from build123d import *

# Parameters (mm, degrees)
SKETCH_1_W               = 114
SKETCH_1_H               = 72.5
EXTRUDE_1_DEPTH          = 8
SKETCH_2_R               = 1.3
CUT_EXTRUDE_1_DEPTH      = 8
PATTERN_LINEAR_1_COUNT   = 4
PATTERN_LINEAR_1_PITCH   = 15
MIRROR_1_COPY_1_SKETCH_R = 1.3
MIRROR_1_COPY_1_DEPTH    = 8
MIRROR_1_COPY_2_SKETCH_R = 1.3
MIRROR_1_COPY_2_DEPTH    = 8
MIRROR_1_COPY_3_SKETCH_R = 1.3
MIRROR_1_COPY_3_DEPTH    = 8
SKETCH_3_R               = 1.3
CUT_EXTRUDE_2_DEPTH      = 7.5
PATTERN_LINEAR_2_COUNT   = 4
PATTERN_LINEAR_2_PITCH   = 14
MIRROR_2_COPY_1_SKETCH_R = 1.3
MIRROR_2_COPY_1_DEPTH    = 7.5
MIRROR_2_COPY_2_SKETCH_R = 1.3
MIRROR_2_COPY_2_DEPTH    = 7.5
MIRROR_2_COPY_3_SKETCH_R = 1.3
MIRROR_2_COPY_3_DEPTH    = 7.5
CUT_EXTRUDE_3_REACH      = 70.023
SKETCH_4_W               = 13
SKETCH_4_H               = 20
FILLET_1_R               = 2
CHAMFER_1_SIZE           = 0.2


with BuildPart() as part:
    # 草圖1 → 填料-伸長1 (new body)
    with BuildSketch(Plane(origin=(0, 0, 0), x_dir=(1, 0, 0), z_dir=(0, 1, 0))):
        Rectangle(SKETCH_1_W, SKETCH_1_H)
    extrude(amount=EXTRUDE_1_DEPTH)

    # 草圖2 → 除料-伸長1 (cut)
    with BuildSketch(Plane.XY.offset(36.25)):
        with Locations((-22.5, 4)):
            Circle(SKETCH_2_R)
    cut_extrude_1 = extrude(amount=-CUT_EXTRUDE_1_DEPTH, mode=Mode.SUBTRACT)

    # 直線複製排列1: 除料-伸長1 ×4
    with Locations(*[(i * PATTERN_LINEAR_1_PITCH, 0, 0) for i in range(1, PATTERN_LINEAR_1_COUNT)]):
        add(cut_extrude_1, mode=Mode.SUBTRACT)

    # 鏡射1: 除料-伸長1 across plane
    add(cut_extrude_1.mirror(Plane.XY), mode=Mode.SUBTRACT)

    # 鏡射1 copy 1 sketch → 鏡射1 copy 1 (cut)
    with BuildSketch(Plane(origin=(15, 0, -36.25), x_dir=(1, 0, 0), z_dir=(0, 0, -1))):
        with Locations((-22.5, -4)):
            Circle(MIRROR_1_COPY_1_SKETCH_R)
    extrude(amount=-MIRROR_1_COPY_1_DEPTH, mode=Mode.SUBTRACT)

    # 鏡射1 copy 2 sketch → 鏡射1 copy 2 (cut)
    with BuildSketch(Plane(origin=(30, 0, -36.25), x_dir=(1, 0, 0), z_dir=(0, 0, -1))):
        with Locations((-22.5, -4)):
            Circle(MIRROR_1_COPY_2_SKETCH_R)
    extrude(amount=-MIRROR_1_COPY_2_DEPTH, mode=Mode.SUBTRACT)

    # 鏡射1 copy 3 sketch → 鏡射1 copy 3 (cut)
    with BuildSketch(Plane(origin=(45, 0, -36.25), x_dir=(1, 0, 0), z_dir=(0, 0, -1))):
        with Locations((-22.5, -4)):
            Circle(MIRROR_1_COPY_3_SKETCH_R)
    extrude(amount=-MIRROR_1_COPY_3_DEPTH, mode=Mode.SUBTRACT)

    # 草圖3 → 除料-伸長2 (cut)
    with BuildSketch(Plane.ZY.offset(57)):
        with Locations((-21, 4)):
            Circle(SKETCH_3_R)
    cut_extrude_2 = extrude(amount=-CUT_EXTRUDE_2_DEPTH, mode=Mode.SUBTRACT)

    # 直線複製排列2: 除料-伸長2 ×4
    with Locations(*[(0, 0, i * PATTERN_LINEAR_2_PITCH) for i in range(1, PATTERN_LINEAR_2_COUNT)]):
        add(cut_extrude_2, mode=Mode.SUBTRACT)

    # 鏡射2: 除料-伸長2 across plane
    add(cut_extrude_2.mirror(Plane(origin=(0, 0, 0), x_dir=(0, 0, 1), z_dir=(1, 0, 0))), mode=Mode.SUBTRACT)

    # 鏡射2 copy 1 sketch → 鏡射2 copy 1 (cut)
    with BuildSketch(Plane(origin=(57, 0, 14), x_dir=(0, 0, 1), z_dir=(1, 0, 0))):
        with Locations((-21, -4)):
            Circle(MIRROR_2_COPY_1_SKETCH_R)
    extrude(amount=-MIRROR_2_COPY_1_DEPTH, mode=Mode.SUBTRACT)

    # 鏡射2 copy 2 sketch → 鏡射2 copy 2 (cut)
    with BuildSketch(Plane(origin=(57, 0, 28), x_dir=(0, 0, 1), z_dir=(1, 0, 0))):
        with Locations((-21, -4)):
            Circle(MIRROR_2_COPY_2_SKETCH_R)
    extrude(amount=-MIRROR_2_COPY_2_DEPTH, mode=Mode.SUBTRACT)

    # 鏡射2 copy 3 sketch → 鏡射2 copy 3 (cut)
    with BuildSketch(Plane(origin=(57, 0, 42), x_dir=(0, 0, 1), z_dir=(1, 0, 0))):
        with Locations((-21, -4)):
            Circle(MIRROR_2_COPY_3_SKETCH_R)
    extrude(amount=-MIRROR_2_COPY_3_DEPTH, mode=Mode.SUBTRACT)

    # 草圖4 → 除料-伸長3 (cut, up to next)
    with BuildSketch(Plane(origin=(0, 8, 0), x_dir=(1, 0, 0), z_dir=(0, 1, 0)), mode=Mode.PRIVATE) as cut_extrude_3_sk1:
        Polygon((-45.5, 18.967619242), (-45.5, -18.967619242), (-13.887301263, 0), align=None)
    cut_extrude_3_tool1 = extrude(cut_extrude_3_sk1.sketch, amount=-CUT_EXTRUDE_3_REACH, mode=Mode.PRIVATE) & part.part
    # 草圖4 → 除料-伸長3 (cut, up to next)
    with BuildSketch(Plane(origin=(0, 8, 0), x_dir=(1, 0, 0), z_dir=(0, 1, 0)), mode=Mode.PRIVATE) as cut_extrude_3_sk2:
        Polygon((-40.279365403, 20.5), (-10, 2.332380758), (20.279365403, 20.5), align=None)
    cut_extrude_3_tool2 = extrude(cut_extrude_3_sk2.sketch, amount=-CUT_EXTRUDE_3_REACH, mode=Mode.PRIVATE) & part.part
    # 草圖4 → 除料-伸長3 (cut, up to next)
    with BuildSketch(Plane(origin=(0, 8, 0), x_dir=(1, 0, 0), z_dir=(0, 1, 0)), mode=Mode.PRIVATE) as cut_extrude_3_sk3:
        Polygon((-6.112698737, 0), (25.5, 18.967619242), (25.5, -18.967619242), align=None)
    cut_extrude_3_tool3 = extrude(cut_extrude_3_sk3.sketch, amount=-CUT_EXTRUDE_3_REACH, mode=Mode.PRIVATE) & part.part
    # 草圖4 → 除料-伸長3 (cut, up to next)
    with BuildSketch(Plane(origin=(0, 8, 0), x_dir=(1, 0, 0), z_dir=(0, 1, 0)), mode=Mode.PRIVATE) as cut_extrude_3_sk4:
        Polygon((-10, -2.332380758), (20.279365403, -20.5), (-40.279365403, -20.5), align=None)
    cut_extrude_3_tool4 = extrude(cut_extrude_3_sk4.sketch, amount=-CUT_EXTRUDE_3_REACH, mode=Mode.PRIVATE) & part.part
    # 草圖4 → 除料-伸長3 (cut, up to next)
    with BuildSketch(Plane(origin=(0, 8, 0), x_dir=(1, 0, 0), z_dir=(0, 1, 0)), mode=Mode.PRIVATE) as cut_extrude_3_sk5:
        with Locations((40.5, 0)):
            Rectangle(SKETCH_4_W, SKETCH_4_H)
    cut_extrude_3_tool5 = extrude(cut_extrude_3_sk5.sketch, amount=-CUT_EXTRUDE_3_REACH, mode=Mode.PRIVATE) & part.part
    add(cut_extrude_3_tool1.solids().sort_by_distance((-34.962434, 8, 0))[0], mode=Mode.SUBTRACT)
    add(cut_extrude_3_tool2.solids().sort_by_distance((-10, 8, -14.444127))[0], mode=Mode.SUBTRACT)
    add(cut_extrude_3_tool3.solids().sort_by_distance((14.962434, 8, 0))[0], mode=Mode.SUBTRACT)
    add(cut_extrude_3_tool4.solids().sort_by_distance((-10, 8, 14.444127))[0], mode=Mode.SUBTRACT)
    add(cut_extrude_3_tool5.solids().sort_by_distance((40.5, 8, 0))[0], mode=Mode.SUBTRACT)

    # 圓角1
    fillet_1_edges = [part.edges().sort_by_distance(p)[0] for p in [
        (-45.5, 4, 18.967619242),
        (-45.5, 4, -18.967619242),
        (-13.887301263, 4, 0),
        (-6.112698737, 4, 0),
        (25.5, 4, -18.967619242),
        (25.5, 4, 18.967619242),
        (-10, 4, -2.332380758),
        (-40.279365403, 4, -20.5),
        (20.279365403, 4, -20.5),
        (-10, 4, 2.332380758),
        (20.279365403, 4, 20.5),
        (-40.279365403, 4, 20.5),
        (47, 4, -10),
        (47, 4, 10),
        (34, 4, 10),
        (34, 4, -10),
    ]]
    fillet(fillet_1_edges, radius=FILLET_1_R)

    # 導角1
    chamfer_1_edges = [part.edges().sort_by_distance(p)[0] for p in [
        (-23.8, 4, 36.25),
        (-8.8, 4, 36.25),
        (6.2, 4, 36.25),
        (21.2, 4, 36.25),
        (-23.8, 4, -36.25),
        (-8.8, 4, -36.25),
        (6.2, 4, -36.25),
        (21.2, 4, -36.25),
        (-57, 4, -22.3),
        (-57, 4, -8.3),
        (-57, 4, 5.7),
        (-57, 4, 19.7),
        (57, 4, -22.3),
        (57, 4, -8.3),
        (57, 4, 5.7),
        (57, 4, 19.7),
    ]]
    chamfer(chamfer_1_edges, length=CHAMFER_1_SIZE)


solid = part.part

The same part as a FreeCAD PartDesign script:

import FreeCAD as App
import Part
import Sketcher

V = App.Vector
Q = App.Units.Quantity


def edges_at(feature, points):
    """Names of the edges that pass closest to the given points."""
    edges = feature.Shape.Edges
    near = lambda p: min(range(len(edges)), key=lambda i: edges[i].distToShape(Part.Vertex(*p))[0])
    return sorted({f"Edge{near(p) + 1}" for p in points})


def add_polygon(sketch, points):
    """Adds a closed chain of lines whose ends are joined by coincident constraints."""
    first, n = sketch.GeometryCount, len(points)
    for a, b in zip(points, points[1:] + points[:1]):
        sketch.addGeometry(Part.LineSegment(App.Vector(*a, 0), App.Vector(*b, 0)), False)
    for i in range(n):
        sketch.addConstraint(Sketcher.Constraint("Coincident", first + i, 2, first + (i + 1) % n, 1))

doc = App.newDocument("Part")
body = doc.addObject("PartDesign::Body", "Body")

sketch1 = body.newObject("Sketcher::SketchObject", "Sketch")
sketch1.AttachmentSupport = (doc.getObject("XZ_Plane"), [""])
sketch1.MapMode = "FlatFace"
add_polygon(sketch1, [(-57, -36), (-57, 36), (57, 36), (57, -36)])
sketch1.addConstraint([
    Sketcher.Constraint("Vertical", 0),
    Sketcher.Constraint("Horizontal", 1),
    Sketcher.Constraint("Vertical", 2),
    Sketcher.Constraint("Horizontal", 3),
    Sketcher.Constraint("Symmetric", 0, 2, 2, 2, -1, 1),
    Sketcher.Constraint("DistanceX", 1, 1, 1, 2, Q("114 mm")),
    Sketcher.Constraint("DistanceY", 0, 1, 0, 2, Q("72.5 mm")),
])
pad1 = body.newObject("PartDesign::Pad", "Pad")
pad1.Profile = sketch1
pad1.Length = 8
pad1.Reversed = True

sketch2 = body.newObject("Sketcher::SketchObject", "Sketch001")
sketch2.AttachmentSupport = (doc.getObject("XY_Plane"), [""])
sketch2.MapMode = "FlatFace"
sketch2.AttachmentOffset = App.Placement(V(0, 0, 36.25), App.Rotation())
sketch2.addGeometry(Part.Circle(V(-22.5, 4, 0), V(0, 0, 1), 1.3), False)
sketch2.addConstraint([
    Sketcher.Constraint("Diameter", 0, Q("2.6 mm")),
    Sketcher.Constraint("DistanceY", -1, 1, 0, 3, Q("4 mm")),
    Sketcher.Constraint("DistanceX", 0, 3, -1, 1, Q("22.5 mm")),
])
pocket1 = body.newObject("PartDesign::Pocket", "Pocket")
pocket1.Profile = sketch2
pocket1.Length = 8
doc.recompute()

linearpattern = body.newObject("PartDesign::LinearPattern", "LinearPattern")
linearpattern.Originals = [pocket1]
linearpattern.Direction = (doc.getObject("X_Axis"), [""])
linearpattern.Mode = "offset"
linearpattern.Offset = 15
linearpattern.Occurrences = 4
body.Tip = linearpattern
doc.recompute()

mirrored = body.newObject("PartDesign::Mirrored", "Mirrored")
mirrored.Originals = [pocket1]
mirrored.MirrorPlane = (doc.getObject("XY_Plane"), [""])
body.Tip = mirrored

sketch3 = body.newObject("Sketcher::SketchObject", "Sketch002")
sketch3.AttachmentSupport = (doc.getObject("XY_Plane"), [""])
sketch3.MapMode = "FlatFace"
sketch3.AttachmentOffset = App.Placement(V(0, 0, -36.25), App.Rotation())
sketch3.addGeometry(Part.Circle(V(-7.5, 4, 0), V(0, 0, 1), 1.3), False)
sketch3.addConstraint([
    Sketcher.Constraint("Diameter", 0, Q("2.6 mm")),
    Sketcher.Constraint("DistanceY", -1, 1, 0, 3, Q("4 mm")),
    Sketcher.Constraint("DistanceX", 0, 3, -1, 1, Q("7.5 mm")),
])
pocket2 = body.newObject("PartDesign::Pocket", "Pocket001")
pocket2.Profile = sketch3
pocket2.Length = 8
pocket2.Reversed = True

sketch4 = body.newObject("Sketcher::SketchObject", "Sketch003")
sketch4.AttachmentSupport = (doc.getObject("XY_Plane"), [""])
sketch4.MapMode = "FlatFace"
sketch4.AttachmentOffset = App.Placement(V(0, 0, -36.25), App.Rotation())
sketch4.addGeometry(Part.Circle(V(7.5, 4, 0), V(0, 0, 1), 1.3), False)
sketch4.addConstraint([
    Sketcher.Constraint("Diameter", 0, Q("2.6 mm")),
    Sketcher.Constraint("DistanceY", -1, 1, 0, 3, Q("4 mm")),
    Sketcher.Constraint("DistanceX", -1, 1, 0, 3, Q("7.5 mm")),
])
pocket3 = body.newObject("PartDesign::Pocket", "Pocket002")
pocket3.Profile = sketch4
pocket3.Length = 8
pocket3.Reversed = True

sketch5 = body.newObject("Sketcher::SketchObject", "Sketch004")
sketch5.AttachmentSupport = (doc.getObject("XY_Plane"), [""])
sketch5.MapMode = "FlatFace"
sketch5.AttachmentOffset = App.Placement(V(0, 0, -36.25), App.Rotation())
sketch5.addGeometry(Part.Circle(V(22.5, 4, 0), V(0, 0, 1), 1.3), False)
sketch5.addConstraint([
    Sketcher.Constraint("Diameter", 0, Q("2.6 mm")),
    Sketcher.Constraint("DistanceY", -1, 1, 0, 3, Q("4 mm")),
    Sketcher.Constraint("DistanceX", -1, 1, 0, 3, Q("22.5 mm")),
])
pocket4 = body.newObject("PartDesign::Pocket", "Pocket003")
pocket4.Profile = sketch5
pocket4.Length = 8
pocket4.Reversed = True

sketch6 = body.newObject("Sketcher::SketchObject", "Sketch005")
sketch6.AttachmentSupport = (doc.getObject("YZ_Plane"), [""])
sketch6.MapMode = "FlatFace"
sketch6.AttachmentOffset = App.Placement(V(0, 0, -57), App.Rotation())
sketch6.addGeometry(Part.Circle(V(4, -21, 0), V(0, 0, 1), 1.3), False)
sketch6.addConstraint([
    Sketcher.Constraint("Diameter", 0, Q("2.6 mm")),
    Sketcher.Constraint("DistanceX", -1, 1, 0, 3, Q("4 mm")),
    Sketcher.Constraint("DistanceY", 0, 3, -1, 1, Q("21 mm")),
])
pocket5 = body.newObject("PartDesign::Pocket", "Pocket004")
pocket5.Profile = sketch6
pocket5.Length = 7.5
pocket5.Reversed = True
doc.recompute()

linearpattern2 = body.newObject("PartDesign::LinearPattern", "LinearPattern001")
linearpattern2.Originals = [pocket5]
linearpattern2.Direction = (doc.getObject("Z_Axis"), [""])
linearpattern2.Mode = "offset"
linearpattern2.Offset = 14
linearpattern2.Occurrences = 4
body.Tip = linearpattern2
doc.recompute()

mirrored2 = body.newObject("PartDesign::Mirrored", "Mirrored001")
mirrored2.Originals = [pocket5]
mirrored2.MirrorPlane = (doc.getObject("YZ_Plane"), [""])
body.Tip = mirrored2

sketch7 = body.newObject("Sketcher::SketchObject", "Sketch006")
sketch7.AttachmentSupport = (doc.getObject("YZ_Plane"), [""])
sketch7.MapMode = "FlatFace"
sketch7.AttachmentOffset = App.Placement(V(0, 0, 57), App.Rotation())
sketch7.addGeometry(Part.Circle(V(4, -7, 0), V(0, 0, 1), 1.3), False)
sketch7.addConstraint([
    Sketcher.Constraint("Diameter", 0, Q("2.6 mm")),
    Sketcher.Constraint("DistanceX", -1, 1, 0, 3, Q("4 mm")),
    Sketcher.Constraint("DistanceY", 0, 3, -1, 1, Q("7 mm")),
])
pocket6 = body.newObject("PartDesign::Pocket", "Pocket005")
pocket6.Profile = sketch7
pocket6.Length = 7.5

sketch8 = body.newObject("Sketcher::SketchObject", "Sketch007")
sketch8.AttachmentSupport = (doc.getObject("YZ_Plane"), [""])
sketch8.MapMode = "FlatFace"
sketch8.AttachmentOffset = App.Placement(V(0, 0, 57), App.Rotation())
sketch8.addGeometry(Part.Circle(V(4, 7, 0), V(0, 0, 1), 1.3), False)
sketch8.addConstraint([
    Sketcher.Constraint("Diameter", 0, Q("2.6 mm")),
    Sketcher.Constraint("DistanceX", -1, 1, 0, 3, Q("4 mm")),
    Sketcher.Constraint("DistanceY", -1, 1, 0, 3, Q("7 mm")),
])
pocket7 = body.newObject("PartDesign::Pocket", "Pocket006")
pocket7.Profile = sketch8
pocket7.Length = 7.5

sketch9 = body.newObject("Sketcher::SketchObject", "Sketch008")
sketch9.AttachmentSupport = (doc.getObject("YZ_Plane"), [""])
sketch9.MapMode = "FlatFace"
sketch9.AttachmentOffset = App.Placement(V(0, 0, 57), App.Rotation())
sketch9.addGeometry(Part.Circle(V(4, 21, 0), V(0, 0, 1), 1.3), False)
sketch9.addConstraint([
    Sketcher.Constraint("Diameter", 0, Q("2.6 mm")),
    Sketcher.Constraint("DistanceX", -1, 1, 0, 3, Q("4 mm")),
    Sketcher.Constraint("DistanceY", -1, 1, 0, 3, Q("21 mm")),
])
pocket8 = body.newObject("PartDesign::Pocket", "Pocket007")
pocket8.Profile = sketch9
pocket8.Length = 7.5

sketch10 = body.newObject("Sketcher::SketchObject", "Sketch009")
sketch10.AttachmentSupport = (doc.getObject("XZ_Plane"), [""])
sketch10.MapMode = "FlatFace"
sketch10.AttachmentOffset = App.Placement(V(0, 0, -8), App.Rotation())
add_polygon(sketch10, [(-46, -19), (-46, 19), (-14, 0)])
sketch10.addConstraint([
    Sketcher.Constraint("Vertical", 0),
    Sketcher.Constraint("PointOnObject", 1, 2, -1),
    Sketcher.Constraint("Equal", 1, 2),
    Sketcher.Constraint("DistanceX", 0, 2, -1, 1, Q("45.5 mm")),
    Sketcher.Constraint("DistanceY", 0, 1, 0, 2, Q("37.935238 mm")),
    Sketcher.Constraint("DistanceX", 1, 2, -1, 1, Q("13.887301 mm")),
])
pocket9 = body.newObject("PartDesign::Pocket", "Pocket008")
pocket9.Profile = sketch10
pocket9.Type = "UpToFirst"
pocket9.Reversed = True

sketch11 = body.newObject("Sketcher::SketchObject", "Sketch010")
sketch11.AttachmentSupport = (doc.getObject("XZ_Plane"), [""])
sketch11.MapMode = "FlatFace"
sketch11.AttachmentOffset = App.Placement(V(0, 0, -8), App.Rotation())
add_polygon(sketch11, [(-40, -20), (-10, -2), (20, -20)])
sketch11.addConstraint([
    Sketcher.Constraint("Horizontal", 2),
    Sketcher.Constraint("Equal", 0, 1),
    Sketcher.Constraint("DistanceX", 0, 2, -1, 1, Q("10 mm")),
    Sketcher.Constraint("DistanceY", 1, 2, -1, 1, Q("20.5 mm")),
    Sketcher.Constraint("DistanceX", 2, 2, 2, 1, Q("60.558731 mm")),
    Sketcher.Constraint("DistanceY", 0, 2, -1, 1, Q("2.332381 mm")),
])
pocket10 = body.newObject("PartDesign::Pocket", "Pocket009")
pocket10.Profile = sketch11
pocket10.Type = "UpToFirst"
pocket10.Reversed = True

sketch12 = body.newObject("Sketcher::SketchObject", "Sketch011")
sketch12.AttachmentSupport = (doc.getObject("XZ_Plane"), [""])
sketch12.MapMode = "FlatFace"
sketch12.AttachmentOffset = App.Placement(V(0, 0, -8), App.Rotation())
add_polygon(sketch12, [(26, -19), (-6, 0), (26, 19)])
sketch12.addConstraint([
    Sketcher.Constraint("Vertical", 2),
    Sketcher.Constraint("PointOnObject", 0, 2, -1),
    Sketcher.Constraint("Equal", 0, 1),
    Sketcher.Constraint("DistanceX", -1, 1, 1, 2, Q("25.5 mm")),
    Sketcher.Constraint("DistanceY", 2, 2, 2, 1, Q("37.935238 mm")),
    Sketcher.Constraint("DistanceX", 0, 2, -1, 1, Q("6.112699 mm")),
])
pocket11 = body.newObject("PartDesign::Pocket", "Pocket010")
pocket11.Profile = sketch12
pocket11.Type = "UpToFirst"
pocket11.Reversed = True

sketch13 = body.newObject("Sketcher::SketchObject", "Sketch012")
sketch13.AttachmentSupport = (doc.getObject("XZ_Plane"), [""])
sketch13.MapMode = "FlatFace"
sketch13.AttachmentOffset = App.Placement(V(0, 0, -8), App.Rotation())
add_polygon(sketch13, [(20, 20), (-10, 2), (-40, 20)])
sketch13.addConstraint([
    Sketcher.Constraint("Horizontal", 2),
    Sketcher.Constraint("Equal", 0, 1),
    Sketcher.Constraint("DistanceX", 0, 2, -1, 1, Q("10 mm")),
    Sketcher.Constraint("DistanceY", -1, 1, 1, 2, Q("20.5 mm")),
    Sketcher.Constraint("DistanceX", 2, 1, 2, 2, Q("60.558731 mm")),
    Sketcher.Constraint("DistanceY", -1, 1, 0, 2, Q("2.332381 mm")),
])
pocket12 = body.newObject("PartDesign::Pocket", "Pocket011")
pocket12.Profile = sketch13
pocket12.Type = "UpToFirst"
pocket12.Reversed = True

sketch14 = body.newObject("Sketcher::SketchObject", "Sketch013")
sketch14.AttachmentSupport = (doc.getObject("XZ_Plane"), [""])
sketch14.MapMode = "FlatFace"
sketch14.AttachmentOffset = App.Placement(V(0, 0, -8), App.Rotation())
add_polygon(sketch14, [(34, -10), (34, 10), (47, 10), (47, -10)])
sketch14.addConstraint([
    Sketcher.Constraint("Vertical", 0),
    Sketcher.Constraint("Horizontal", 1),
    Sketcher.Constraint("Vertical", 2),
    Sketcher.Constraint("Horizontal", 3),
    Sketcher.Constraint("DistanceX", 1, 1, 1, 2, Q("13 mm")),
    Sketcher.Constraint("DistanceY", 0, 1, 0, 2, Q("20 mm")),
    Sketcher.Constraint("DistanceX", -1, 1, 0, 2, Q("34 mm")),
    Sketcher.Constraint("DistanceY", -1, 1, 0, 2, Q("10 mm")),
])
pocket13 = body.newObject("PartDesign::Pocket", "Pocket012")
pocket13.Profile = sketch14
pocket13.Type = "UpToFirst"
pocket13.Reversed = True
doc.recompute()

fillet = body.newObject("PartDesign::Fillet", "Fillet")
fillet.Base = (pocket13, edges_at(pocket13, [
    (-45.5, 4, 18.968),
    (-45.5, 4, -18.968),
    (-13.887, 4, 0),
    (-6.113, 4, 0),
    (25.5, 4, -18.968),
    (25.5, 4, 18.968),
    (-10, 4, -2.332),
    (-40.279, 4, -20.5),
    (20.279, 4, -20.5),
    (-10, 4, 2.332),
    (20.279, 4, 20.5),
    (-40.279, 4, 20.5),
    (47, 4, -10),
    (47, 4, 10),
    (34, 4, 10),
    (34, 4, -10),
]))
fillet.Radius = 2
doc.recompute()

chamfer = body.newObject("PartDesign::Chamfer", "Chamfer")
chamfer.Base = (fillet, edges_at(fillet, [
    (-23.8, 4, 36.25),
    (-8.8, 4, 36.25),
    (6.2, 4, 36.25),
    (21.2, 4, 36.25),
    (-23.8, 4, -36.25),
    (-8.8, 4, -36.25),
    (6.2, 4, -36.25),
    (21.2, 4, -36.25),
    (-57, 4, -22.3),
    (-57, 4, -8.3),
    (-57, 4, 5.7),
    (-57, 4, 19.7),
    (57, 4, -22.3),
    (57, 4, -8.3),
    (57, 4, 5.7),
    (57, 4, 19.7),
]))
chamfer.Size = 0.2

doc.recompute()
